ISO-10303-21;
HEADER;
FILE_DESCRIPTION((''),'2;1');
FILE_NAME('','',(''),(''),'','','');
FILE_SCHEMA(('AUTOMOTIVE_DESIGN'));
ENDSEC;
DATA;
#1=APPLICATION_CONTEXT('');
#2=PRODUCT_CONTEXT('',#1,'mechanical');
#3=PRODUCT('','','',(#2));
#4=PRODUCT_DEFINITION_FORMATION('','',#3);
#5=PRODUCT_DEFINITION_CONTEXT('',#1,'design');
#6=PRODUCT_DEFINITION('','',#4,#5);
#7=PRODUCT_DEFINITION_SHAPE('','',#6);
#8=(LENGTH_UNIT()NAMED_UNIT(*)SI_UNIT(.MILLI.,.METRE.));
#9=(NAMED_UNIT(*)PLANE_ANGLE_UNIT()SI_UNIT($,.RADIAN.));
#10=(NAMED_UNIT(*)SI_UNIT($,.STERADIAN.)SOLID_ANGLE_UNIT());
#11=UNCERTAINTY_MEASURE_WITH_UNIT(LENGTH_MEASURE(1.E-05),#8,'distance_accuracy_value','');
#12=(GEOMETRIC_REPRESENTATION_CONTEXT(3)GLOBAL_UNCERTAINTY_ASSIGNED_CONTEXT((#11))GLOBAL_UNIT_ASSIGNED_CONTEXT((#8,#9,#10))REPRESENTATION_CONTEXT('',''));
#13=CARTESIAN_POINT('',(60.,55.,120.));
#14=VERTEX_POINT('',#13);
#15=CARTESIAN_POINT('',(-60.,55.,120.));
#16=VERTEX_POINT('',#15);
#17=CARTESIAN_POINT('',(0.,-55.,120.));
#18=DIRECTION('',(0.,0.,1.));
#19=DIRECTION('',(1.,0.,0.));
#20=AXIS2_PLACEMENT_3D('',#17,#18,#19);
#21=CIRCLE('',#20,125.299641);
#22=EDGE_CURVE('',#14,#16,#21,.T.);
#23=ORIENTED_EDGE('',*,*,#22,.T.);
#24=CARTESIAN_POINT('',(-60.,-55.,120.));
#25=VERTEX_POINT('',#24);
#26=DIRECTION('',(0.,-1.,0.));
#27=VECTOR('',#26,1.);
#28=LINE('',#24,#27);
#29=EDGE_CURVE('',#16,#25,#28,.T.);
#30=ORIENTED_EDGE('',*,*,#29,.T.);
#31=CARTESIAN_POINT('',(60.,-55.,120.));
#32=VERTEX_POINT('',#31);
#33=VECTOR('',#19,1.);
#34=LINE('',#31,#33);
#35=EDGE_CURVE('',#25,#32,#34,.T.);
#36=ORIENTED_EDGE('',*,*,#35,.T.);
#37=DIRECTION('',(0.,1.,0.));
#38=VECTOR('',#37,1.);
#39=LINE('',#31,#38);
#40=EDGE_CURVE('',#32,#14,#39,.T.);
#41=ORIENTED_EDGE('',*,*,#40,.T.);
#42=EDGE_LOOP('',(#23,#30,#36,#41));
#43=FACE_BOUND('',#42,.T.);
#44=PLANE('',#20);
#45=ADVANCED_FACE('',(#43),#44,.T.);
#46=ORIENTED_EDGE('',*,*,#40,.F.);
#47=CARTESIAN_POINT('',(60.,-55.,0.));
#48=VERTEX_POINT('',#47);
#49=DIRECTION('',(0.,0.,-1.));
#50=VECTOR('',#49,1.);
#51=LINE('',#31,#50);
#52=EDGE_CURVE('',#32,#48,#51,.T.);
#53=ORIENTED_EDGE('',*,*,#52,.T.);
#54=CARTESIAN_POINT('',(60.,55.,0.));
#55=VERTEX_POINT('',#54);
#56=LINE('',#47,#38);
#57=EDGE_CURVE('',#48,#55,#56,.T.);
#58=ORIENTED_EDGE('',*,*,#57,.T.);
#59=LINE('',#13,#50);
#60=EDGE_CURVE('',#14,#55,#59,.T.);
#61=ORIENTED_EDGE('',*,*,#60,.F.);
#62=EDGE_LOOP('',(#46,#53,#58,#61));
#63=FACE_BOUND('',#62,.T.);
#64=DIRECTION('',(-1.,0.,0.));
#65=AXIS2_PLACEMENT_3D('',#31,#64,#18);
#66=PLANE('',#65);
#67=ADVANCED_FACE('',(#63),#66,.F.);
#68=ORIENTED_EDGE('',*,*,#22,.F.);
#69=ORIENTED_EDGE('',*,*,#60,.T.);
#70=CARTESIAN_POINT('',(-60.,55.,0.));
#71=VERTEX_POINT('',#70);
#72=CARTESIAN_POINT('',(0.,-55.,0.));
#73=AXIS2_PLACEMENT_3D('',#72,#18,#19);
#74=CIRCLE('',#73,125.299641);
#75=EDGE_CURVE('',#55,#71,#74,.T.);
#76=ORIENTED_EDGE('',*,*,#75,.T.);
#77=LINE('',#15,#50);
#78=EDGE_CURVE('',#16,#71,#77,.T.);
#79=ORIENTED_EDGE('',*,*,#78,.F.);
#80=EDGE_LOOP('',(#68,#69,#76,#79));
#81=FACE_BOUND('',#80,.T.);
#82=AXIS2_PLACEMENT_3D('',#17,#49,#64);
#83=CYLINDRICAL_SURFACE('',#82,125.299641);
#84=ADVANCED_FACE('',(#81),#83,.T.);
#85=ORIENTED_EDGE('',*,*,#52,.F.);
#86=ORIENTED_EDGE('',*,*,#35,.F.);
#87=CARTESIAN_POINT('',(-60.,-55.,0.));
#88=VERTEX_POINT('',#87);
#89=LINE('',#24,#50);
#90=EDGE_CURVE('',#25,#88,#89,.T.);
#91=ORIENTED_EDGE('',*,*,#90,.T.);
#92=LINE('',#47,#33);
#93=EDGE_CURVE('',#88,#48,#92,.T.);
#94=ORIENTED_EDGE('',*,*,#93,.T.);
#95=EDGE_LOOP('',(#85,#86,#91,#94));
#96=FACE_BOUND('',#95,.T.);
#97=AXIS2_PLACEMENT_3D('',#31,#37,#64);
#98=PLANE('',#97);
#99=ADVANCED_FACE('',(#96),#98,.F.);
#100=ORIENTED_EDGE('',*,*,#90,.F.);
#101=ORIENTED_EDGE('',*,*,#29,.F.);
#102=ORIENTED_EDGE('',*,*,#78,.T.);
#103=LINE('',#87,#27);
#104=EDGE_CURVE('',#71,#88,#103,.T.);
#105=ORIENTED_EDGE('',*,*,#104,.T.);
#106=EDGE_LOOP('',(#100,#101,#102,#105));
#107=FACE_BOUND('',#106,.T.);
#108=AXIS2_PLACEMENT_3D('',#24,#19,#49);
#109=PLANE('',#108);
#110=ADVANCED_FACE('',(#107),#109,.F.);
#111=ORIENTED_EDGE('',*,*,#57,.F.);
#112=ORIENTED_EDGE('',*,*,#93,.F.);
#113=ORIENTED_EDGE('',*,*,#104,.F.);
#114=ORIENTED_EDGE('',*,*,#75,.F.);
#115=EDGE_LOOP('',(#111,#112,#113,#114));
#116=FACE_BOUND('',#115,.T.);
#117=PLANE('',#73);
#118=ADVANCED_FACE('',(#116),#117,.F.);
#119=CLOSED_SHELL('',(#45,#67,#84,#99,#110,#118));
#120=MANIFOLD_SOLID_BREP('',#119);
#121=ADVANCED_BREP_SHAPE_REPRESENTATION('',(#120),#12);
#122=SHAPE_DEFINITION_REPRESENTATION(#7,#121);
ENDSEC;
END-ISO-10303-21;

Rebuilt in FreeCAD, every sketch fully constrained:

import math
import FreeCAD as App
import Part
import Sketcher

doc = App.newDocument("Part")
body = doc.addObject("PartDesign::Body", "Body")

# Sketch on XY plane
sketch1 = body.newObject("Sketcher::SketchObject", "Sketch")
sketch1.AttachmentSupport = (doc.getObject("XY_Plane"), [""])
sketch1.MapMode = "FlatFace"
sketch1.addGeometry(Part.LineSegment(App.Vector(-60, -55, 0), App.Vector(60, -55, 0)), False)
sketch1.addGeometry(Part.LineSegment(App.Vector(60, -55, 0), App.Vector(60, 55, 0)), False)
sketch1.addGeometry(Part.ArcOfCircle(Part.Circle(App.Vector(0, -55, 0), App.Vector(0, 0, 1), 125.299641), math.radians(61.38954), math.radians(118.61046)), False)
sketch1.addGeometry(Part.LineSegment(App.Vector(-60, 55, 0), App.Vector(-60, -55, 0)), False)
sketch1.addConstraint(Sketcher.Constraint("Coincident", 0, 2, 1, 1))
sketch1.addConstraint(Sketcher.Constraint("Coincident", 1, 2, 2, 1))
sketch1.addConstraint(Sketcher.Constraint("Coincident", 2, 2, 3, 1))
sketch1.addConstraint(Sketcher.Constraint("Coincident", 3, 2, 0, 1))
sketch1.addConstraint(Sketcher.Constraint("Horizontal", 0))
sketch1.addConstraint(Sketcher.Constraint("Vertical", 1))
sketch1.addConstraint(Sketcher.Constraint("Vertical", 3))
sketch1.addConstraint(Sketcher.Constraint("Symmetric", 0, 2, 2, 2, -1, 1))
sketch1.addConstraint(Sketcher.Constraint("PointOnObject", 2, 3, -2))
sketch1.addConstraint(Sketcher.Constraint("Horizontal", 2, 3, 0, 2))
sketch1.addConstraint(Sketcher.Constraint("DistanceX", 0, 1, 0, 2, 120.0))
sketch1.addConstraint(Sketcher.Constraint("DistanceY", 1, 1, 1, 2, 110.0))
pad1 = body.newObject("PartDesign::Pad", "Pad")
pad1.Profile = sketch1
pad1.Length = 120

doc.recompute()
